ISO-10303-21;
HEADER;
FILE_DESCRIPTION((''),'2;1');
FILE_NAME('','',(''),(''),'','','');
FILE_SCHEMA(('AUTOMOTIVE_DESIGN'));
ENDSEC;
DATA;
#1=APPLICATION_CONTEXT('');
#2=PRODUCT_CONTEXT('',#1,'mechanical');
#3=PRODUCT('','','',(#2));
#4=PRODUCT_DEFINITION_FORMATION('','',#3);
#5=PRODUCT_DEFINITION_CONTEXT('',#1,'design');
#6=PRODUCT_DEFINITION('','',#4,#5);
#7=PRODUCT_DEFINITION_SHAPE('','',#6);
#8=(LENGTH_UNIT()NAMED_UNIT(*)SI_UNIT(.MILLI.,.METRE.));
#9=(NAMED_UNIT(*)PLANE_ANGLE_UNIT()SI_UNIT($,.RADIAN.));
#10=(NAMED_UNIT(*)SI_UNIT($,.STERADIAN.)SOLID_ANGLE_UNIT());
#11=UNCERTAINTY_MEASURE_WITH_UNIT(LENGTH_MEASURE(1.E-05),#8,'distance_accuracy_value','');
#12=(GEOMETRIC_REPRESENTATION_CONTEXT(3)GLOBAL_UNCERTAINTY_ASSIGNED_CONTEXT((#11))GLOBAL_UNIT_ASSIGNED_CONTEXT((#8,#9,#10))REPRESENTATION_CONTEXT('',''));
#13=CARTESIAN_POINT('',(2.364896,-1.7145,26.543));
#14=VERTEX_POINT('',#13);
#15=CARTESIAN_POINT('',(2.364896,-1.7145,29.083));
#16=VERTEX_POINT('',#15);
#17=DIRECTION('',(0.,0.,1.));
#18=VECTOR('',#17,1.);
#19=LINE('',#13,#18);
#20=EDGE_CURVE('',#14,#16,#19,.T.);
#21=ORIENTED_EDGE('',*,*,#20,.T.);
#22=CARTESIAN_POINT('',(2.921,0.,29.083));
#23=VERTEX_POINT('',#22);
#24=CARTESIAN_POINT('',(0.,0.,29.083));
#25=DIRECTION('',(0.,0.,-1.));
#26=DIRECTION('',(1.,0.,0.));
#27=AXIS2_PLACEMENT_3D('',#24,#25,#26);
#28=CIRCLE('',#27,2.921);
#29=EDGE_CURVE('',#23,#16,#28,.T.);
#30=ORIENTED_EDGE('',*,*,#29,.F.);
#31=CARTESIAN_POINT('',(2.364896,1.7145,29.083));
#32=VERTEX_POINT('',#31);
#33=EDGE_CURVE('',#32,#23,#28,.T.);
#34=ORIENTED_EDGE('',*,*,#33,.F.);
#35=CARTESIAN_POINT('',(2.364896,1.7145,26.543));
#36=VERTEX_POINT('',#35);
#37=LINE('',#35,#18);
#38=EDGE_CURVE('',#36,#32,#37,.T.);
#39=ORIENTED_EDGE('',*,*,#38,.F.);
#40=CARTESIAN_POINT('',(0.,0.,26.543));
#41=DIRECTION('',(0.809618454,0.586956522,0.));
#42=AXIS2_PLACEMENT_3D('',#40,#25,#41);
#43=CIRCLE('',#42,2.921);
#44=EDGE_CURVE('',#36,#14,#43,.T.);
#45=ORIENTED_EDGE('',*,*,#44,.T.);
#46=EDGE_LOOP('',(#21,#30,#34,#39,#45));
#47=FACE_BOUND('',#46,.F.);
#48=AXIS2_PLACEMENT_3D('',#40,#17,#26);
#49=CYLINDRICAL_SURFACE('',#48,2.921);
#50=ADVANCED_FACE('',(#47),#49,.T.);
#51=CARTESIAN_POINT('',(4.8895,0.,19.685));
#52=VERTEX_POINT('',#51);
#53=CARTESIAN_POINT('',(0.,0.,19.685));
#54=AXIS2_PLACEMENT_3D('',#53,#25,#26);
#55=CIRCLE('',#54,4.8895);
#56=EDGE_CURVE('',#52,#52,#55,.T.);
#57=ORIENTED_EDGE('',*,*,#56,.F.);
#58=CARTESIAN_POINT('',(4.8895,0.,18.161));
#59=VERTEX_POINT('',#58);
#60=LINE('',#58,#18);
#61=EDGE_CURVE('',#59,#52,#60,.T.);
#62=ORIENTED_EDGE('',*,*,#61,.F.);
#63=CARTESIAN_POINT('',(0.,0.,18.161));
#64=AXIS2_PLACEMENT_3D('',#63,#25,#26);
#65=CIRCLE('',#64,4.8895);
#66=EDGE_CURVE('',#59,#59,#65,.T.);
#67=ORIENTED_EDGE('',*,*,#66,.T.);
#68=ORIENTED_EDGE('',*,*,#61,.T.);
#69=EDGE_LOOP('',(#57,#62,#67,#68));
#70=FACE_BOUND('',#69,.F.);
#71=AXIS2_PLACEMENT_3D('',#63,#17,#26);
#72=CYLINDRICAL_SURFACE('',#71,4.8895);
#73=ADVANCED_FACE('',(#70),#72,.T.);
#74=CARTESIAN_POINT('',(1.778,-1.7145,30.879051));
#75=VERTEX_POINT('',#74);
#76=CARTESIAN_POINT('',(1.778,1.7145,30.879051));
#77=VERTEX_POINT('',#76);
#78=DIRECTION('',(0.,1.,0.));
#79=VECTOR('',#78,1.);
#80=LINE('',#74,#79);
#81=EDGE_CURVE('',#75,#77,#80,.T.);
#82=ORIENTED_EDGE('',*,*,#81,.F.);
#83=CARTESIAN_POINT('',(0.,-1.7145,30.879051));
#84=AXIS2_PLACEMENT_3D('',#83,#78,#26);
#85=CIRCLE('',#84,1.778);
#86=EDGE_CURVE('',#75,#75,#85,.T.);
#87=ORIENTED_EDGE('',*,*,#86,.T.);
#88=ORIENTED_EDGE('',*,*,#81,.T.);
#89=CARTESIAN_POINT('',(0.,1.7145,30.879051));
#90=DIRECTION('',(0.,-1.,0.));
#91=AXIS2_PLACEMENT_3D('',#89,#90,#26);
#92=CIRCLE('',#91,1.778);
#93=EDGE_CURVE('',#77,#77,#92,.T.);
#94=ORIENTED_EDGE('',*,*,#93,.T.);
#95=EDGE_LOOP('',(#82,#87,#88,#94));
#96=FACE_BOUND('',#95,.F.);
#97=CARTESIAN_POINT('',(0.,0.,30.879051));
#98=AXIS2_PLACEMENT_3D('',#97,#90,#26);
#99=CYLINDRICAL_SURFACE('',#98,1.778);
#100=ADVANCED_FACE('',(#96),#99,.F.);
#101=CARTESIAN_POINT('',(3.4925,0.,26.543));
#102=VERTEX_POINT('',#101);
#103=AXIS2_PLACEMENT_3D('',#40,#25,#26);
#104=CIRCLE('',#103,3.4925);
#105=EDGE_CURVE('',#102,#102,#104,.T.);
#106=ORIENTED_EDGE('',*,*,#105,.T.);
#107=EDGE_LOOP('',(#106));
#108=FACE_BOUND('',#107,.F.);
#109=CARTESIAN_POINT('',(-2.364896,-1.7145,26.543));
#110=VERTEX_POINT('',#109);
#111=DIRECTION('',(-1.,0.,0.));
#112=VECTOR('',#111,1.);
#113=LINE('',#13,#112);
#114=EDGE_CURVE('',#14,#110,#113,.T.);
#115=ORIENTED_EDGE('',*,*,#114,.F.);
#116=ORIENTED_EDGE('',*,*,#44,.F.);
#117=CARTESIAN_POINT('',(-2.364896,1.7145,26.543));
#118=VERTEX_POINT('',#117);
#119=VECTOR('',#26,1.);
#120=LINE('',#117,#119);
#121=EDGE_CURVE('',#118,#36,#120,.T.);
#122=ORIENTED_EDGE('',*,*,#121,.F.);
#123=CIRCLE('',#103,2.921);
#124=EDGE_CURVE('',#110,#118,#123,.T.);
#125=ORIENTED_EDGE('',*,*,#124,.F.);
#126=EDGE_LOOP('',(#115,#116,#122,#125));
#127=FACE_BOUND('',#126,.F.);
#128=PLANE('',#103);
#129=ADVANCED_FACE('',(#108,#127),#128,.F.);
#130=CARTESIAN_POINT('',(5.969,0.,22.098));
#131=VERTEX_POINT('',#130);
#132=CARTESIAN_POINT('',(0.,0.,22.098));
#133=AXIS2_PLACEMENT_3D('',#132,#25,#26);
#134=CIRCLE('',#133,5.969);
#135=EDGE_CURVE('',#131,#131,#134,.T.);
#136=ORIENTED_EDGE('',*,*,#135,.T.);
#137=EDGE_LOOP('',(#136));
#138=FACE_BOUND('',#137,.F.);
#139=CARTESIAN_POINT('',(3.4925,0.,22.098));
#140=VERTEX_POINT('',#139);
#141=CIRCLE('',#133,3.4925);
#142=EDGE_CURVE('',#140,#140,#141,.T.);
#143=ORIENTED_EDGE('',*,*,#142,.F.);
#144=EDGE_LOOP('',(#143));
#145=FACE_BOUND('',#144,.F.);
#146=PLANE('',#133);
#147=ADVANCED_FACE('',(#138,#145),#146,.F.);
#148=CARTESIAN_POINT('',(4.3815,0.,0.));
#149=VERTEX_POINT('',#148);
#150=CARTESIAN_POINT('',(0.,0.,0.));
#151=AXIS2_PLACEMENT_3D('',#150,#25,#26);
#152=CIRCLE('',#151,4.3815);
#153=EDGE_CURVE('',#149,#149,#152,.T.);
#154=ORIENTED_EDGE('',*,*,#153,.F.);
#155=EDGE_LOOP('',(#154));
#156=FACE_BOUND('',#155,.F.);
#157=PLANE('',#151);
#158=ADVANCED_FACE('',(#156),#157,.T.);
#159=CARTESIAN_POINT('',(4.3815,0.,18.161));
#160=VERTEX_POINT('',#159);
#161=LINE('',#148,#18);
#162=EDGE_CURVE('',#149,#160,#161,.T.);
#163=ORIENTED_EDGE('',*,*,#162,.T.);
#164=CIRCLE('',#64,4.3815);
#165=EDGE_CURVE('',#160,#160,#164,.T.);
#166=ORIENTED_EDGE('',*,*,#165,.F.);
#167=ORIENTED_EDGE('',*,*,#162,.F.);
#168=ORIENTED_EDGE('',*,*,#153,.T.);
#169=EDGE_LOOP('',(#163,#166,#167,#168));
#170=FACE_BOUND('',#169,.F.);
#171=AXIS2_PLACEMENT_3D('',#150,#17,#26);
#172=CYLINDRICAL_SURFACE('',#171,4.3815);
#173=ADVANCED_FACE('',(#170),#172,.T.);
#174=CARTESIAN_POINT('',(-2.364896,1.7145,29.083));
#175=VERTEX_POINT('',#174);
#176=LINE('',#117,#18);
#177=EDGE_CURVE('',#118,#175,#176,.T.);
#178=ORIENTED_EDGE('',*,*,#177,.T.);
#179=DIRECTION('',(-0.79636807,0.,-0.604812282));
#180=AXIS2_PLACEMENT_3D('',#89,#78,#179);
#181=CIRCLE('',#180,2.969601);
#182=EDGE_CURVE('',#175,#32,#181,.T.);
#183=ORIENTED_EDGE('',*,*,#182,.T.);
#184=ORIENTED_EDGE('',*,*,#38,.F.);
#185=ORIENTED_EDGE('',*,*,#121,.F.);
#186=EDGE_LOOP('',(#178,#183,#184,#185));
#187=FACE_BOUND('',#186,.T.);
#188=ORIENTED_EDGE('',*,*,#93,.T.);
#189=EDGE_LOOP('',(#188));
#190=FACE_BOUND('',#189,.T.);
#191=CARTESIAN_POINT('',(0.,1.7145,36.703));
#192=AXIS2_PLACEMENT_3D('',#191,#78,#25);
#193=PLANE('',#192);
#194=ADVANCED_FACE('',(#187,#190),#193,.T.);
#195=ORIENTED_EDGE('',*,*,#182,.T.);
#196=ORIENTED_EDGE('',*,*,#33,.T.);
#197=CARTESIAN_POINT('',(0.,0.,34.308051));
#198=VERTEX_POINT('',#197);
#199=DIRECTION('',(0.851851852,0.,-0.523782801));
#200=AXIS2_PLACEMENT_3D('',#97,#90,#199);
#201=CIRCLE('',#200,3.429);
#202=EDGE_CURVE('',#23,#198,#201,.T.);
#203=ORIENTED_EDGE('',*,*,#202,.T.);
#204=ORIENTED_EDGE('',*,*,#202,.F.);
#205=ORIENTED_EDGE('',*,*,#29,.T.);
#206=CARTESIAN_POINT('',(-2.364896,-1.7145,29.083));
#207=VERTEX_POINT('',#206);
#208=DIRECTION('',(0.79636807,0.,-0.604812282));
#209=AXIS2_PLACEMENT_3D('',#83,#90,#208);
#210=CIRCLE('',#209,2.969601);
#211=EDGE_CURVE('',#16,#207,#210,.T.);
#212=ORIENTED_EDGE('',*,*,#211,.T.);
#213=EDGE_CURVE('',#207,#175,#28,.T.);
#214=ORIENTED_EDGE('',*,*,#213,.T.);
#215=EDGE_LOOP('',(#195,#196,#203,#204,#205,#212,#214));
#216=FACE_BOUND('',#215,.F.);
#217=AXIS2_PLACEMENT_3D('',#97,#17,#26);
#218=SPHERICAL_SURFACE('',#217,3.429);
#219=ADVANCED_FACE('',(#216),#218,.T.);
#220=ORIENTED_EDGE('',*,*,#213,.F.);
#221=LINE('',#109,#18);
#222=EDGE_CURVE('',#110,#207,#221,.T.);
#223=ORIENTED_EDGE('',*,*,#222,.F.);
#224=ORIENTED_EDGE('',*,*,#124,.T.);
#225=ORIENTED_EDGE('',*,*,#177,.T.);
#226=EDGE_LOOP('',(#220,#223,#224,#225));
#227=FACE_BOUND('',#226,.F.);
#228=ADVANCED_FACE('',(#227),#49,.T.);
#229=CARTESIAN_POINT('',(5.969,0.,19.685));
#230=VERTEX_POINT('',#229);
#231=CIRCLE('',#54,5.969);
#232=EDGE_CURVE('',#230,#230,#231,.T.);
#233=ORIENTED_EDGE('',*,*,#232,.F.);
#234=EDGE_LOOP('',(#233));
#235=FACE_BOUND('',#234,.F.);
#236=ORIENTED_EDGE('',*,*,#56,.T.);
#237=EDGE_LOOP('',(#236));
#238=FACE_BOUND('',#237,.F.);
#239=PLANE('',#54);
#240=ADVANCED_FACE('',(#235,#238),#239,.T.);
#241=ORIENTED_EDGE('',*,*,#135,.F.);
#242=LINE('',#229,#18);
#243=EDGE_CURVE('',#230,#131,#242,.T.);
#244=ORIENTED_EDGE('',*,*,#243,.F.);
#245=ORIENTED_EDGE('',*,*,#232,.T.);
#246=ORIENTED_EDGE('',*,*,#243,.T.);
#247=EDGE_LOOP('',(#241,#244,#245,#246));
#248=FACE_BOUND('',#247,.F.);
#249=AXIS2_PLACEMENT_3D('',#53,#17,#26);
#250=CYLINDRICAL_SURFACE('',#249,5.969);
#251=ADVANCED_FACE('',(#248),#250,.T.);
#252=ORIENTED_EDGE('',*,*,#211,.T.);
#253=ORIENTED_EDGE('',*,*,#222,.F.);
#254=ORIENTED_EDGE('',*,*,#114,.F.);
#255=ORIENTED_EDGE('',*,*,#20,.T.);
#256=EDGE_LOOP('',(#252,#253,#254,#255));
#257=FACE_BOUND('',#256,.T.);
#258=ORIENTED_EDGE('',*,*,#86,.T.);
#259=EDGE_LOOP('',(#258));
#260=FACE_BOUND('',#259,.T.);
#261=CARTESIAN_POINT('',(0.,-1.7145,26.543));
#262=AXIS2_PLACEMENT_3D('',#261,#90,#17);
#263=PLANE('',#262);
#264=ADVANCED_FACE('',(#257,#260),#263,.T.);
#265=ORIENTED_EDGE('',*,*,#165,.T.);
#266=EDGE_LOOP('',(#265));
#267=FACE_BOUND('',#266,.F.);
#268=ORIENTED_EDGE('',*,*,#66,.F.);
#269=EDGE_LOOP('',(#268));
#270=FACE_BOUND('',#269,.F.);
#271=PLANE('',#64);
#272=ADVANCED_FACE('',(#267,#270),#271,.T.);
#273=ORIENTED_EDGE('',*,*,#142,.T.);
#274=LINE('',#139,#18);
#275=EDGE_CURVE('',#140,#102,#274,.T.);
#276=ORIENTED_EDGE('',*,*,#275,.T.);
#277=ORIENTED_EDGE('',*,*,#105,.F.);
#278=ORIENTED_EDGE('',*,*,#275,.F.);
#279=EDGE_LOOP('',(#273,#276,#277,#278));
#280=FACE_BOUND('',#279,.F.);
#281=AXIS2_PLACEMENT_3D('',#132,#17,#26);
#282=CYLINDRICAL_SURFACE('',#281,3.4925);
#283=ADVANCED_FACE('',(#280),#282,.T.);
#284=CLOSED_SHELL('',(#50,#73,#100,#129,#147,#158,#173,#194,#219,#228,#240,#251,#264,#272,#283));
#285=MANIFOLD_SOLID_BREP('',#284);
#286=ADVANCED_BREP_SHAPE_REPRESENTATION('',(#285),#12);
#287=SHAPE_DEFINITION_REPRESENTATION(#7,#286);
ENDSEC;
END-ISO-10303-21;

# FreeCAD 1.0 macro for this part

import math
import FreeCAD as App
import Part
import Sketcher
Q = App.Units.Quantity


def add_polygon(sketch, points):
    """Adds a closed chain of lines whose ends are joined by coincident constraints."""
    first, n = sketch.GeometryCount, len(points)
    for a, b in zip(points, points[1:] + points[:1]):
        sketch.addGeometry(Part.LineSegment(App.Vector(*a, 0), App.Vector(*b, 0)), False)
    for i in range(n):
        sketch.addConstraint(Sketcher.Constraint("Coincident", first + i, 2, first + (i + 1) % n, 1))

doc = App.newDocument("Part")
body = doc.addObject("PartDesign::Body", "Body")

# Sketch on XZ plane
sketch1 = doc.addObject("Sketcher::SketchObject", "Sketch")
body.addObject(sketch1)
sketch1.AttachmentSupport = (doc.XZ_Plane, [""])
sketch1.MapMode = "FlatFace"
sketch1.addGeometry(Part.LineSegment(App.Vector(0, 0, 0), App.Vector(4.4, 0, 0)), False)
sketch1.addGeometry(Part.LineSegment(App.Vector(4.4, 0, 0), App.Vector(4.4, 18.2, 0)), False)
sketch1.addGeometry(Part.LineSegment(App.Vector(4.4, 18.2, 0), App.Vector(4.9, 18.2, 0)), False)
sketch1.addGeometry(Part.LineSegment(App.Vector(4.9, 18.2, 0), App.Vector(4.9, 19.7, 0)), False)
sketch1.addGeometry(Part.LineSegment(App.Vector(4.9, 19.7, 0), App.Vector(6, 19.7, 0)), False)
sketch1.addGeometry(Part.LineSegment(App.Vector(6, 19.7, 0), App.Vector(6, 22.1, 0)), False)
sketch1.addGeometry(Part.LineSegment(App.Vector(6, 22.1, 0), App.Vector(3.5, 22.1, 0)), False)
sketch1.addGeometry(Part.LineSegment(App.Vector(3.5, 22.1, 0), App.Vector(3.5, 26.5, 0)), False)
sketch1.addGeometry(Part.LineSegment(App.Vector(3.5, 26.5, 0), App.Vector(2.9, 26.5, 0)), False)
sketch1.addGeometry(Part.LineSegment(App.Vector(2.9, 26.5, 0), App.Vector(2.9, 29.1, 0)), False)
sketch1.addGeometry(Part.ArcOfCircle(Part.Circle(App.Vector(0, 30.9, 0), App.Vector(0, 0, 1), 3.4), math.radians(-32), math.radians(90)), False)
sketch1.addGeometry(Part.LineSegment(App.Vector(0, 34.3, 0), App.Vector(0, 0, 0)), False)
sketch1.addConstraint(Sketcher.Constraint("Coincident", 0, 2, 1, 1))
sketch1.addConstraint(Sketcher.Constraint("Coincident", 1, 2, 2, 1))
sketch1.addConstraint(Sketcher.Constraint("Coincident", 2, 2, 3, 1))
sketch1.addConstraint(Sketcher.Constraint("Coincident", 3, 2, 4, 1))
sketch1.addConstraint(Sketcher.Constraint("Coincident", 4, 2, 5, 1))
sketch1.addConstraint(Sketcher.Constraint("Coincident", 5, 2, 6, 1))
sketch1.addConstraint(Sketcher.Constraint("Coincident", 6, 2, 7, 1))
sketch1.addConstraint(Sketcher.Constraint("Coincident", 7, 2, 8, 1))
sketch1.addConstraint(Sketcher.Constraint("Coincident", 8, 2, 9, 1))
sketch1.addConstraint(Sketcher.Constraint("Coincident", 9, 2, 10, 1))
sketch1.addConstraint(Sketcher.Constraint("Coincident", 10, 2, 11, 1))
sketch1.addConstraint(Sketcher.Constraint("Coincident", 11, 2, 0, 1))
sketch1.addConstraint(Sketcher.Constraint("Horizontal", 0))
sketch1.addConstraint(Sketcher.Constraint("Vertical", 1))
sketch1.addConstraint(Sketcher.Constraint("Horizontal", 2))
sketch1.addConstraint(Sketcher.Constraint("Vertical", 3))
sketch1.addConstraint(Sketcher.Constraint("Horizontal", 4))
sketch1.addConstraint(Sketcher.Constraint("Vertical", 5))
sketch1.addConstraint(Sketcher.Constraint("Horizontal", 6))
sketch1.addConstraint(Sketcher.Constraint("Vertical", 7))
sketch1.addConstraint(Sketcher.Constraint("Horizontal", 8))
sketch1.addConstraint(Sketcher.Constraint("Vertical", 9))
sketch1.addConstraint(Sketcher.Constraint("Vertical", 11))
sketch1.addConstraint(Sketcher.Constraint("Coincident", 11, 2, -1, 1))
sketch1.addConstraint(Sketcher.Constraint("PointOnObject", 10, 3, -2))
sketch1.addConstraint(Sketcher.Constraint("DistanceY", 9, 1, 9, 2, Q("0.1 in")))
sketch1.addConstraint(Sketcher.Constraint("Radius", 10, Q("0.135 in")))
sketch1.addConstraint(Sketcher.Constraint("DistanceX", 2, 1, 2, 2, Q("0.02 in")))
sketch1.addConstraint(Sketcher.Constraint("DistanceY", 3, 1, 3, 2, Q("0.06 in")))
sketch1.addConstraint(Sketcher.Constraint("DistanceY", 1, 1, 1, 2, Q("0.715 in")))
sketch1.addConstraint(Sketcher.Constraint("DistanceY", 5, 1, 5, 2, Q("0.095 in")))
sketch1.addConstraint(Sketcher.Constraint("DistanceY", 7, 1, 7, 2, Q("0.175 in")))
sketch1.addConstraint(Sketcher.Constraint("DistanceX", 8, 2, 5, 2, Q("0.12 in")))
sketch1.addConstraint(Sketcher.Constraint("DistanceX", 0, 1, 0, 2, Q("0.1725 in")))
sketch1.addConstraint(Sketcher.Constraint("DistanceX", 4, 1, 4, 2, Q("0.0425 in")))
sketch1.addConstraint(Sketcher.Constraint("DistanceX", 6, 2, 6, 1, Q("0.0975 in")))
revolution = doc.addObject("PartDesign::Revolution", "Revolution")
body.addObject(revolution)
revolution.Profile = sketch1
revolution.ReferenceAxis = (sketch1, ["V_Axis"])
revolution.Angle = 360

# Sketch on YZ plane
sketch2 = doc.addObject("Sketcher::SketchObject", "Sketch001")
body.addObject(sketch2)
sketch2.AttachmentSupport = (doc.YZ_Plane, [""])
sketch2.MapMode = "FlatFace"
add_polygon(sketch2, [(-1.7, 26.5), (-1.7, 36.7), (-6.2, 36.7), (-6.2, 26.5)])  # lines 0-3
add_polygon(sketch2, [(6.2, 26.5), (6.2, 36.7), (1.7, 36.7), (1.7, 26.5)])  # lines 4-7
sketch2.addConstraint(Sketcher.Constraint("Vertical", 0))
sketch2.addConstraint(Sketcher.Constraint("Horizontal", 1))
sketch2.addConstraint(Sketcher.Constraint("Vertical", 2))
sketch2.addConstraint(Sketcher.Constraint("Horizontal", 3))
sketch2.addConstraint(Sketcher.Constraint("Vertical", 4))
sketch2.addConstraint(Sketcher.Constraint("Horizontal", 5))
sketch2.addConstraint(Sketcher.Constraint("Vertical", 6))
sketch2.addConstraint(Sketcher.Constraint("Horizontal", 7))
sketch2.addConstraint(Sketcher.Constraint("Symmetric", 1, 2, 4, 2, -2))
sketch2.addConstraint(Sketcher.Constraint("Symmetric", 3, 2, 6, 2, -2))
sketch2.addConstraint(Sketcher.Constraint("DistanceY", 0, 1, 0, 2, Q("0.4 in")))
sketch2.addConstraint(Sketcher.Constraint("DistanceX", 1, 2, 1, 1, Q("0.175 in")))
sketch2.addConstraint(Sketcher.Constraint("DistanceX", 0, 2, 4, 2, Q("0.31 in")))
sketch2.addConstraint(Sketcher.Constraint("DistanceY", -1, 1, 0, 2, Q("1.445 in")))
pocket1 = doc.addObject("PartDesign::Pocket", "Pocket")
body.addObject(pocket1)
pocket1.Profile = sketch2
pocket1.Type = "ThroughAll"
pocket1.Midplane = True

# Sketch on XZ plane
sketch3 = doc.addObject("Sketcher::SketchObject", "Sketch002")
body.addObject(sketch3)
sketch3.AttachmentSupport = (doc.XZ_Plane, [""])
sketch3.MapMode = "FlatFace"
sketch3.addGeometry(Part.Circle(App.Vector(0, 30.9, 0), App.Vector(0, 0, 1), 1.8), False)
sketch3.addConstraint(Sketcher.Constraint("PointOnObject", 0, 3, -2))
sketch3.addConstraint(Sketcher.Constraint("Diameter", 0, Q("0.14 in")))
sketch3.addConstraint(Sketcher.Constraint("DistanceY", -1, 1, 0, 3, 30.879051))
pocket2 = doc.addObject("PartDesign::Pocket", "Pocket001")
body.addObject(pocket2)
pocket2.Profile = sketch3
pocket2.Type = "ThroughAll"
pocket2.Midplane = True

doc.recompute()
